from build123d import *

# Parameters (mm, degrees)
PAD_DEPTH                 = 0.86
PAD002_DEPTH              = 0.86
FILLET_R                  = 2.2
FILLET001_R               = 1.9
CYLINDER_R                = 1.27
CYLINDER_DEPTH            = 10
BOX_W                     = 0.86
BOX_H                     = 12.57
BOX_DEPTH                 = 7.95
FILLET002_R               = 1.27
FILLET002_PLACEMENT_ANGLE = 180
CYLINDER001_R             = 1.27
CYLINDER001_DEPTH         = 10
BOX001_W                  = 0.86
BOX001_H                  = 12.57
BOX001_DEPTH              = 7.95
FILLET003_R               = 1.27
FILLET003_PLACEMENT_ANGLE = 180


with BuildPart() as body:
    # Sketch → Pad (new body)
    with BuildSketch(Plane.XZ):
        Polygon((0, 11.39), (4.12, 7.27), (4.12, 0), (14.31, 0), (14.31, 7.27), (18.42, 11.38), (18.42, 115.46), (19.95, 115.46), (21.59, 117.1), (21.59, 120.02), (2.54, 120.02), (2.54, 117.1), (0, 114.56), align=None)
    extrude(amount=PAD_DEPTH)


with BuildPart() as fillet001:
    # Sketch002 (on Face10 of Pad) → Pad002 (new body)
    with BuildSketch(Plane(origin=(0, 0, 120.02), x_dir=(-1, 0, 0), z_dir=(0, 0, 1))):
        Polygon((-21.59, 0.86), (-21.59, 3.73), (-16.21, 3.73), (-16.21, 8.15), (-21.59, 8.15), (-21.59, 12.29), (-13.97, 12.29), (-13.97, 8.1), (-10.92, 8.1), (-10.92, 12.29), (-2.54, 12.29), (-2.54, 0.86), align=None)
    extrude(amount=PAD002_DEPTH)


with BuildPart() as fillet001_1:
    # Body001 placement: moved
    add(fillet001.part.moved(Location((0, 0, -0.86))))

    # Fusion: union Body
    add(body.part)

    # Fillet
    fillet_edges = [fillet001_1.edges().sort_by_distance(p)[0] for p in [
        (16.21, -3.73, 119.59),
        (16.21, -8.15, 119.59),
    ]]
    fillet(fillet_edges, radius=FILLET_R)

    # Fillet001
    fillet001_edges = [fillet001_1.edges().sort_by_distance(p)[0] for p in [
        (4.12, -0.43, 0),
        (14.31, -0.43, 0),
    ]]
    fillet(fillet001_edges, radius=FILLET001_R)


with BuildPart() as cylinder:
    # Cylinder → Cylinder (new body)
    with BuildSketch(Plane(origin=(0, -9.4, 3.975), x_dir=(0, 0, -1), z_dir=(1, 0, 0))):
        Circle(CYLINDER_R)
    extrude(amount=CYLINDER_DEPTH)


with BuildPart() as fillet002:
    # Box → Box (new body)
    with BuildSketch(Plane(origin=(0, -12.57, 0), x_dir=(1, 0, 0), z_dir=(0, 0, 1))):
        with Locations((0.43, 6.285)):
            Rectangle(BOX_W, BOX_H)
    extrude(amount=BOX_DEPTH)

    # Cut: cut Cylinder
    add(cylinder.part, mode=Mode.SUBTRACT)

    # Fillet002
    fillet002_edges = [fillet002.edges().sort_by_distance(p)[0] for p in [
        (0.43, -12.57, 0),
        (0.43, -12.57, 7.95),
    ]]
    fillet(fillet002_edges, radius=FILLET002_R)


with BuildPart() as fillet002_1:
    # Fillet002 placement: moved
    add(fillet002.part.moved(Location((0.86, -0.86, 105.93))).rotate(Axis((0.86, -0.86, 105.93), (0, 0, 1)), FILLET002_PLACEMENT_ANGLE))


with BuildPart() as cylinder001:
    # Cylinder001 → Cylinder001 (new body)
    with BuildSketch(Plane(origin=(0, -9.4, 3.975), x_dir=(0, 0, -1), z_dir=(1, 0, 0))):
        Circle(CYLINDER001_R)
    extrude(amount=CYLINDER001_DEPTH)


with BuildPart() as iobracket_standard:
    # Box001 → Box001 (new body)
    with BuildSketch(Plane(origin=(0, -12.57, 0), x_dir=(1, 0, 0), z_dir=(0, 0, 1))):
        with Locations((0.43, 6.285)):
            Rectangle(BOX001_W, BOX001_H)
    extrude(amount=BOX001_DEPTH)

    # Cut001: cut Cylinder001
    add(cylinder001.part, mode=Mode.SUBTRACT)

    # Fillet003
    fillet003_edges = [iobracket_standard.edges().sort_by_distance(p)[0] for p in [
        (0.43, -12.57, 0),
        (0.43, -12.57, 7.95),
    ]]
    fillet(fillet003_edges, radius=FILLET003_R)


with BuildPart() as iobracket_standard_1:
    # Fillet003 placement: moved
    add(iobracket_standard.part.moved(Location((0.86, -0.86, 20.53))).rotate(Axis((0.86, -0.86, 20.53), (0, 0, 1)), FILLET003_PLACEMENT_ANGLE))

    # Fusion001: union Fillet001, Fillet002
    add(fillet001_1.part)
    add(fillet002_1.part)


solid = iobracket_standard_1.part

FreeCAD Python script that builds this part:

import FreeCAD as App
import Part
import Sketcher

V = App.Vector
Q = App.Units.Quantity


def edges_at(feature, points):
    """Names of the edges that pass closest to the given points."""
    edges = feature.Shape.Edges
    near = lambda p: min(range(len(edges)), key=lambda i: edges[i].distToShape(Part.Vertex(*p))[0])
    return sorted({f"Edge{near(p) + 1}" for p in points})


def add_polygon(sketch, points):
    """Adds a closed chain of lines whose ends are joined by coincident constraints."""
    first, n = sketch.GeometryCount, len(points)
    for a, b in zip(points, points[1:] + points[:1]):
        sketch.addGeometry(Part.LineSegment(App.Vector(*a, 0), App.Vector(*b, 0)), False)
    for i in range(n):
        sketch.addConstraint(Sketcher.Constraint("Coincident", first + i, 2, first + (i + 1) % n, 1))

doc = App.newDocument("Part")
body = doc.addObject("PartDesign::Body", "Body")

# Sketch on XZ plane
sketch1 = body.newObject("Sketcher::SketchObject", "Sketch")
sketch1.AttachmentSupport = (doc.getObject("XZ_Plane"), [""])
sketch1.MapMode = "FlatFace"
add_polygon(sketch1, [(0, 11.4), (4.1, 7.3), (4.1, 0), (14.3, 0), (14.3, 7.3), (18.4, 11.4), (18.4, 115.5), (19.9, 115.5), (21.6, 117.1), (21.6, 120), (2.5, 120), (2.5, 117.1), (0, 114.6)])  # lines 0-12
sketch1.addConstraint(Sketcher.Constraint("Vertical", 1))
sketch1.addConstraint(Sketcher.Constraint("Horizontal", 2))
sketch1.addConstraint(Sketcher.Constraint("Vertical", 3))
sketch1.addConstraint(Sketcher.Constraint("Vertical", 5))
sketch1.addConstraint(Sketcher.Constraint("Horizontal", 6))
sketch1.addConstraint(Sketcher.Constraint("Vertical", 8))
sketch1.addConstraint(Sketcher.Constraint("Horizontal", 9))
sketch1.addConstraint(Sketcher.Constraint("Vertical", 10))
sketch1.addConstraint(Sketcher.Constraint("Vertical", 12))
sketch1.addConstraint(Sketcher.Constraint("PointOnObject", 1, 2, -1))
sketch1.addConstraint(Sketcher.Constraint("PointOnObject", 11, 2, -2))
sketch1.addConstraint(Sketcher.Constraint("Perpendicular", 0, 4))
sketch1.addConstraint(Sketcher.Constraint("Parallel", 4, 7))
sketch1.addConstraint(Sketcher.Constraint("Parallel", 7, 11))
sketch1.addConstraint(Sketcher.Constraint("Horizontal", 0, 2, 3, 2))
sketch1.addConstraint(Sketcher.Constraint("Horizontal", 7, 2, 10, 2))
sketch1.addConstraint(Sketcher.Constraint("Angle", 0, Q("-45 deg")))
sketch1.addConstraint(Sketcher.Constraint("DistanceX", 9, 2, 9, 1, Q("0.75 in")))
sketch1.addConstraint(Sketcher.Constraint("DistanceX", -1, 1, 9, 2, Q("0.1 in")))
sketch1.addConstraint(Sketcher.Constraint("DistanceX", 2, 1, 2, 2, Q("10.19 mm")))
sketch1.addConstraint(Sketcher.Constraint("DistanceX", 6, 1, 6, 2, Q("1.53 mm")))
sketch1.addConstraint(Sketcher.Constraint("DistanceY", 1, 2, 1, 1, Q("7.27 mm")))
sketch1.addConstraint(Sketcher.Constraint("DistanceY", 5, 1, 5, 2, Q("104.08 mm")))
sketch1.addConstraint(Sketcher.Constraint("DistanceY", 8, 1, 8, 2, Q("2.92 mm")))
sketch1.addConstraint(Sketcher.Constraint("DistanceY", 12, 2, 12, 1, Q("103.17 mm")))
sketch1.addConstraint(Sketcher.Constraint("DistanceX", -1, 1, 4, 2, Q("18.42 mm")))
pad1 = body.newObject("PartDesign::Pad", "Pad")
pad1.Profile = sketch1
pad1.Length = 0.86
body2 = doc.addObject("PartDesign::Body", "Body001")

# Sketch on XY plane
sketch2 = body2.newObject("Sketcher::SketchObject", "Sketch001")
sketch2.AttachmentSupport = (doc.getObject("XY_Plane001"), [""])
sketch2.MapMode = "FlatFace"
sketch2.AttachmentOffset = App.Placement(V(0, 0, 120.02), App.Rotation())
add_polygon(sketch2, [(21.6, -3.7), (21.6, -0.9), (2.5, -0.9), (2.5, -12.3), (10.9, -12.3), (10.9, -8.1), (14, -8.1), (14, -12.3), (21.6, -12.3), (21.6, -8.2), (16.2, -8.2), (16.2, -3.7)])  # lines 0-11
sketch2.addConstraint(Sketcher.Constraint("Vertical", 0))
sketch2.addConstraint(Sketcher.Constraint("Horizontal", 1))
sketch2.addConstraint(Sketcher.Constraint("Vertical", 2))
sketch2.addConstraint(Sketcher.Constraint("Horizontal", 3))
sketch2.addConstraint(Sketcher.Constraint("Vertical", 4))
sketch2.addConstraint(Sketcher.Constraint("Horizontal", 5))
sketch2.addConstraint(Sketcher.Constraint("Vertical", 6))
sketch2.addConstraint(Sketcher.Constraint("Horizontal", 7))
sketch2.addConstraint(Sketcher.Constraint("Vertical", 8))
sketch2.addConstraint(Sketcher.Constraint("Horizontal", 9))
sketch2.addConstraint(Sketcher.Constraint("Vertical", 10))
sketch2.addConstraint(Sketcher.Constraint("Horizontal", 11))
sketch2.addConstraint(Sketcher.Constraint("Horizontal", 3, 2, 6, 2))
sketch2.addConstraint(Sketcher.Constraint("Vertical", 0, 2, 7, 2))
sketch2.addConstraint(Sketcher.Constraint("DistanceX", 7, 1, 7, 2, Q("0.3 in")))
sketch2.addConstraint(Sketcher.Constraint("DistanceX", 1, 2, 1, 1, Q("0.75 in")))
sketch2.addConstraint(Sketcher.Constraint("DistanceY", 2, 2, 2, 1, Q("0.45 in")))
sketch2.addConstraint(Sketcher.Constraint("DistanceX", -1, 1, 1, 2, Q("0.1 in")))
sketch2.addConstraint(Sketcher.Constraint("DistanceX", 3, 1, 3, 2, Q("8.38 mm")))
sketch2.addConstraint(Sketcher.Constraint("DistanceX", 9, 2, 9, 1, Q("5.38 mm")))
sketch2.addConstraint(Sketcher.Constraint("DistanceY", 0, 1, 0, 2, Q("2.87 mm")))
sketch2.addConstraint(Sketcher.Constraint("DistanceY", 4, 1, 4, 2, Q("4.19 mm")))
sketch2.addConstraint(Sketcher.Constraint("DistanceY", 8, 1, 8, 2, Q("4.14 mm")))
sketch2.addConstraint(Sketcher.Constraint("DistanceY", 0, 2, -1, 1, Q("0.86 mm")))
pad2 = body2.newObject("PartDesign::Pad", "Pad001")
pad2.Profile = sketch2
pad2.Length = 0.86
body3 = doc.addObject("PartDesign::Body", "Body002")
doc.recompute()

body2.Placement = App.Placement(V(0, 0, -0.86), App.Rotation(V(0, 0, 1), 0))
boolean = body3.newObject("PartDesign::Boolean", "Boolean")
boolean.Type = "Fuse"
boolean.addObjects([body2])
doc.recompute()

boolean2 = body3.newObject("PartDesign::Boolean", "Boolean001")
boolean2.Type = "Fuse"
boolean2.addObjects([body])
doc.recompute()

fillet = body3.newObject("PartDesign::Fillet", "Fillet")
fillet.Base = (boolean2, edges_at(boolean2, [(16.21, -3.73, 119.59), (16.21, -8.15, 119.59)]))
fillet.Radius = 2.2
doc.recompute()

fillet2 = body3.newObject("PartDesign::Fillet", "Fillet001")
fillet2.Base = (fillet, edges_at(fillet, [(4.12, -0.43, 0), (14.31, -0.43, 0)]))
fillet2.Radius = 1.9
body4 = doc.addObject("PartDesign::Body", "Body003")

# Sketch on YZ plane
sketch3 = body4.newObject("Sketcher::SketchObject", "Sketch002")
sketch3.AttachmentSupport = (doc.getObject("YZ_Plane003"), [""])
sketch3.MapMode = "FlatFace"
sketch3.addGeometry(Part.Circle(V(-9.4, 4, 0), V(0, 0, 1), 1.3), False)
sketch3.addConstraint(Sketcher.Constraint("Diameter", 0, Q("0.1 in")))
sketch3.addConstraint(Sketcher.Constraint("DistanceX", 0, 3, -1, 1, Q("9.4 mm")))
sketch3.addConstraint(Sketcher.Constraint("DistanceY", -1, 1, 0, 3, Q("3.975 mm")))
pad3 = body4.newObject("PartDesign::Pad", "Pad002")
pad3.Profile = sketch3
pad3.Length = 10
body5 = doc.addObject("PartDesign::Body", "Body004")

# Sketch on XY plane
sketch4 = body5.newObject("Sketcher::SketchObject", "Sketch003")
sketch4.AttachmentSupport = (doc.getObject("XY_Plane004"), [""])
sketch4.MapMode = "FlatFace"
add_polygon(sketch4, [(0, 0), (0, -12.6), (0.9, -12.6), (0.9, 0)])  # lines 0-3
sketch4.addConstraint(Sketcher.Constraint("Vertical", 0))
sketch4.addConstraint(Sketcher.Constraint("Horizontal", 1))
sketch4.addConstraint(Sketcher.Constraint("Vertical", 2))
sketch4.addConstraint(Sketcher.Constraint("Horizontal", 3))
sketch4.addConstraint(Sketcher.Constraint("Coincident", 3, 2, -1, 1))
sketch4.addConstraint(Sketcher.Constraint("DistanceX", 1, 1, 1, 2, Q("0.86 mm")))
sketch4.addConstraint(Sketcher.Constraint("DistanceY", 0, 2, 0, 1, Q("12.57 mm")))
pad4 = body5.newObject("PartDesign::Pad", "Pad003")
pad4.Profile = sketch4
pad4.Length = 7.95
doc.recompute()

boolean3 = body5.newObject("PartDesign::Boolean", "Boolean002")
boolean3.Type = "Cut"
boolean3.addObjects([body4])
doc.recompute()

fillet3 = body5.newObject("PartDesign::Fillet", "Fillet002")
fillet3.Base = (boolean3, edges_at(boolean3, [(0.43, -12.57, 0), (0.43, -12.57, 7.95)]))
fillet3.Radius = Q("0.05 in")
body6 = doc.addObject("PartDesign::Body", "Body005")
doc.recompute()

body5.Placement = App.Placement(V(0.86, -0.86, 105.93), App.Rotation(V(0, 0, 1), 180))
boolean4 = body6.newObject("PartDesign::Boolean", "Boolean003")
boolean4.Type = "Fuse"
boolean4.addObjects([body5])
body7 = doc.addObject("PartDesign::Body", "Body006")

# Sketch on YZ plane
sketch5 = body7.newObject("Sketcher::SketchObject", "Sketch004")
sketch5.AttachmentSupport = (doc.getObject("YZ_Plane006"), [""])
sketch5.MapMode = "FlatFace"
sketch5.addGeometry(Part.Circle(V(-9.4, 4, 0), V(0, 0, 1), 1.3), False)
sketch5.addConstraint(Sketcher.Constraint("Diameter", 0, Q("0.1 in")))
sketch5.addConstraint(Sketcher.Constraint("DistanceX", 0, 3, -1, 1, Q("9.4 mm")))
sketch5.addConstraint(Sketcher.Constraint("DistanceY", -1, 1, 0, 3, Q("3.975 mm")))
pad5 = body7.newObject("PartDesign::Pad", "Pad004")
pad5.Profile = sketch5
pad5.Length = 10
body8 = doc.addObject("PartDesign::Body", "Body007")

# Sketch on XY plane
sketch6 = body8.newObject("Sketcher::SketchObject", "Sketch005")
sketch6.AttachmentSupport = (doc.getObject("XY_Plane007"), [""])
sketch6.MapMode = "FlatFace"
add_polygon(sketch6, [(0, 0), (0, -12.6), (0.9, -12.6), (0.9, 0)])  # lines 0-3
sketch6.addConstraint(Sketcher.Constraint("Vertical", 0))
sketch6.addConstraint(Sketcher.Constraint("Horizontal", 1))
sketch6.addConstraint(Sketcher.Constraint("Vertical", 2))
sketch6.addConstraint(Sketcher.Constraint("Horizontal", 3))
sketch6.addConstraint(Sketcher.Constraint("Coincident", 3, 2, -1, 1))
sketch6.addConstraint(Sketcher.Constraint("DistanceX", 1, 1, 1, 2, Q("0.86 mm")))
sketch6.addConstraint(Sketcher.Constraint("DistanceY", 0, 2, 0, 1, Q("12.57 mm")))
pad6 = body8.newObject("PartDesign::Pad", "Pad005")
pad6.Profile = sketch6
pad6.Length = 7.95
doc.recompute()

boolean5 = body8.newObject("PartDesign::Boolean", "Boolean004")
boolean5.Type = "Cut"
boolean5.addObjects([body7])
doc.recompute()

fillet4 = body8.newObject("PartDesign::Fillet", "Fillet003")
fillet4.Base = (boolean5, edges_at(boolean5, [(0.43, -12.57, 0), (0.43, -12.57, 7.95)]))
fillet4.Radius = Q("0.05 in")
body9 = doc.addObject("PartDesign::Body", "Body008")
doc.recompute()

body8.Placement = App.Placement(V(0.86, -0.86, 20.53), App.Rotation(V(0, 0, 1), 180))
boolean6 = body9.newObject("PartDesign::Boolean", "Boolean005")
boolean6.Type = "Fuse"
boolean6.addObjects([body8])
doc.recompute()

boolean7 = body9.newObject("PartDesign::Boolean", "Boolean006")
boolean7.Type = "Fuse"
boolean7.addObjects([body3])
doc.recompute()

boolean8 = body9.newObject("PartDesign::Boolean", "Boolean007")
boolean8.Type = "Fuse"
boolean8.addObjects([body6])

doc.recompute()
